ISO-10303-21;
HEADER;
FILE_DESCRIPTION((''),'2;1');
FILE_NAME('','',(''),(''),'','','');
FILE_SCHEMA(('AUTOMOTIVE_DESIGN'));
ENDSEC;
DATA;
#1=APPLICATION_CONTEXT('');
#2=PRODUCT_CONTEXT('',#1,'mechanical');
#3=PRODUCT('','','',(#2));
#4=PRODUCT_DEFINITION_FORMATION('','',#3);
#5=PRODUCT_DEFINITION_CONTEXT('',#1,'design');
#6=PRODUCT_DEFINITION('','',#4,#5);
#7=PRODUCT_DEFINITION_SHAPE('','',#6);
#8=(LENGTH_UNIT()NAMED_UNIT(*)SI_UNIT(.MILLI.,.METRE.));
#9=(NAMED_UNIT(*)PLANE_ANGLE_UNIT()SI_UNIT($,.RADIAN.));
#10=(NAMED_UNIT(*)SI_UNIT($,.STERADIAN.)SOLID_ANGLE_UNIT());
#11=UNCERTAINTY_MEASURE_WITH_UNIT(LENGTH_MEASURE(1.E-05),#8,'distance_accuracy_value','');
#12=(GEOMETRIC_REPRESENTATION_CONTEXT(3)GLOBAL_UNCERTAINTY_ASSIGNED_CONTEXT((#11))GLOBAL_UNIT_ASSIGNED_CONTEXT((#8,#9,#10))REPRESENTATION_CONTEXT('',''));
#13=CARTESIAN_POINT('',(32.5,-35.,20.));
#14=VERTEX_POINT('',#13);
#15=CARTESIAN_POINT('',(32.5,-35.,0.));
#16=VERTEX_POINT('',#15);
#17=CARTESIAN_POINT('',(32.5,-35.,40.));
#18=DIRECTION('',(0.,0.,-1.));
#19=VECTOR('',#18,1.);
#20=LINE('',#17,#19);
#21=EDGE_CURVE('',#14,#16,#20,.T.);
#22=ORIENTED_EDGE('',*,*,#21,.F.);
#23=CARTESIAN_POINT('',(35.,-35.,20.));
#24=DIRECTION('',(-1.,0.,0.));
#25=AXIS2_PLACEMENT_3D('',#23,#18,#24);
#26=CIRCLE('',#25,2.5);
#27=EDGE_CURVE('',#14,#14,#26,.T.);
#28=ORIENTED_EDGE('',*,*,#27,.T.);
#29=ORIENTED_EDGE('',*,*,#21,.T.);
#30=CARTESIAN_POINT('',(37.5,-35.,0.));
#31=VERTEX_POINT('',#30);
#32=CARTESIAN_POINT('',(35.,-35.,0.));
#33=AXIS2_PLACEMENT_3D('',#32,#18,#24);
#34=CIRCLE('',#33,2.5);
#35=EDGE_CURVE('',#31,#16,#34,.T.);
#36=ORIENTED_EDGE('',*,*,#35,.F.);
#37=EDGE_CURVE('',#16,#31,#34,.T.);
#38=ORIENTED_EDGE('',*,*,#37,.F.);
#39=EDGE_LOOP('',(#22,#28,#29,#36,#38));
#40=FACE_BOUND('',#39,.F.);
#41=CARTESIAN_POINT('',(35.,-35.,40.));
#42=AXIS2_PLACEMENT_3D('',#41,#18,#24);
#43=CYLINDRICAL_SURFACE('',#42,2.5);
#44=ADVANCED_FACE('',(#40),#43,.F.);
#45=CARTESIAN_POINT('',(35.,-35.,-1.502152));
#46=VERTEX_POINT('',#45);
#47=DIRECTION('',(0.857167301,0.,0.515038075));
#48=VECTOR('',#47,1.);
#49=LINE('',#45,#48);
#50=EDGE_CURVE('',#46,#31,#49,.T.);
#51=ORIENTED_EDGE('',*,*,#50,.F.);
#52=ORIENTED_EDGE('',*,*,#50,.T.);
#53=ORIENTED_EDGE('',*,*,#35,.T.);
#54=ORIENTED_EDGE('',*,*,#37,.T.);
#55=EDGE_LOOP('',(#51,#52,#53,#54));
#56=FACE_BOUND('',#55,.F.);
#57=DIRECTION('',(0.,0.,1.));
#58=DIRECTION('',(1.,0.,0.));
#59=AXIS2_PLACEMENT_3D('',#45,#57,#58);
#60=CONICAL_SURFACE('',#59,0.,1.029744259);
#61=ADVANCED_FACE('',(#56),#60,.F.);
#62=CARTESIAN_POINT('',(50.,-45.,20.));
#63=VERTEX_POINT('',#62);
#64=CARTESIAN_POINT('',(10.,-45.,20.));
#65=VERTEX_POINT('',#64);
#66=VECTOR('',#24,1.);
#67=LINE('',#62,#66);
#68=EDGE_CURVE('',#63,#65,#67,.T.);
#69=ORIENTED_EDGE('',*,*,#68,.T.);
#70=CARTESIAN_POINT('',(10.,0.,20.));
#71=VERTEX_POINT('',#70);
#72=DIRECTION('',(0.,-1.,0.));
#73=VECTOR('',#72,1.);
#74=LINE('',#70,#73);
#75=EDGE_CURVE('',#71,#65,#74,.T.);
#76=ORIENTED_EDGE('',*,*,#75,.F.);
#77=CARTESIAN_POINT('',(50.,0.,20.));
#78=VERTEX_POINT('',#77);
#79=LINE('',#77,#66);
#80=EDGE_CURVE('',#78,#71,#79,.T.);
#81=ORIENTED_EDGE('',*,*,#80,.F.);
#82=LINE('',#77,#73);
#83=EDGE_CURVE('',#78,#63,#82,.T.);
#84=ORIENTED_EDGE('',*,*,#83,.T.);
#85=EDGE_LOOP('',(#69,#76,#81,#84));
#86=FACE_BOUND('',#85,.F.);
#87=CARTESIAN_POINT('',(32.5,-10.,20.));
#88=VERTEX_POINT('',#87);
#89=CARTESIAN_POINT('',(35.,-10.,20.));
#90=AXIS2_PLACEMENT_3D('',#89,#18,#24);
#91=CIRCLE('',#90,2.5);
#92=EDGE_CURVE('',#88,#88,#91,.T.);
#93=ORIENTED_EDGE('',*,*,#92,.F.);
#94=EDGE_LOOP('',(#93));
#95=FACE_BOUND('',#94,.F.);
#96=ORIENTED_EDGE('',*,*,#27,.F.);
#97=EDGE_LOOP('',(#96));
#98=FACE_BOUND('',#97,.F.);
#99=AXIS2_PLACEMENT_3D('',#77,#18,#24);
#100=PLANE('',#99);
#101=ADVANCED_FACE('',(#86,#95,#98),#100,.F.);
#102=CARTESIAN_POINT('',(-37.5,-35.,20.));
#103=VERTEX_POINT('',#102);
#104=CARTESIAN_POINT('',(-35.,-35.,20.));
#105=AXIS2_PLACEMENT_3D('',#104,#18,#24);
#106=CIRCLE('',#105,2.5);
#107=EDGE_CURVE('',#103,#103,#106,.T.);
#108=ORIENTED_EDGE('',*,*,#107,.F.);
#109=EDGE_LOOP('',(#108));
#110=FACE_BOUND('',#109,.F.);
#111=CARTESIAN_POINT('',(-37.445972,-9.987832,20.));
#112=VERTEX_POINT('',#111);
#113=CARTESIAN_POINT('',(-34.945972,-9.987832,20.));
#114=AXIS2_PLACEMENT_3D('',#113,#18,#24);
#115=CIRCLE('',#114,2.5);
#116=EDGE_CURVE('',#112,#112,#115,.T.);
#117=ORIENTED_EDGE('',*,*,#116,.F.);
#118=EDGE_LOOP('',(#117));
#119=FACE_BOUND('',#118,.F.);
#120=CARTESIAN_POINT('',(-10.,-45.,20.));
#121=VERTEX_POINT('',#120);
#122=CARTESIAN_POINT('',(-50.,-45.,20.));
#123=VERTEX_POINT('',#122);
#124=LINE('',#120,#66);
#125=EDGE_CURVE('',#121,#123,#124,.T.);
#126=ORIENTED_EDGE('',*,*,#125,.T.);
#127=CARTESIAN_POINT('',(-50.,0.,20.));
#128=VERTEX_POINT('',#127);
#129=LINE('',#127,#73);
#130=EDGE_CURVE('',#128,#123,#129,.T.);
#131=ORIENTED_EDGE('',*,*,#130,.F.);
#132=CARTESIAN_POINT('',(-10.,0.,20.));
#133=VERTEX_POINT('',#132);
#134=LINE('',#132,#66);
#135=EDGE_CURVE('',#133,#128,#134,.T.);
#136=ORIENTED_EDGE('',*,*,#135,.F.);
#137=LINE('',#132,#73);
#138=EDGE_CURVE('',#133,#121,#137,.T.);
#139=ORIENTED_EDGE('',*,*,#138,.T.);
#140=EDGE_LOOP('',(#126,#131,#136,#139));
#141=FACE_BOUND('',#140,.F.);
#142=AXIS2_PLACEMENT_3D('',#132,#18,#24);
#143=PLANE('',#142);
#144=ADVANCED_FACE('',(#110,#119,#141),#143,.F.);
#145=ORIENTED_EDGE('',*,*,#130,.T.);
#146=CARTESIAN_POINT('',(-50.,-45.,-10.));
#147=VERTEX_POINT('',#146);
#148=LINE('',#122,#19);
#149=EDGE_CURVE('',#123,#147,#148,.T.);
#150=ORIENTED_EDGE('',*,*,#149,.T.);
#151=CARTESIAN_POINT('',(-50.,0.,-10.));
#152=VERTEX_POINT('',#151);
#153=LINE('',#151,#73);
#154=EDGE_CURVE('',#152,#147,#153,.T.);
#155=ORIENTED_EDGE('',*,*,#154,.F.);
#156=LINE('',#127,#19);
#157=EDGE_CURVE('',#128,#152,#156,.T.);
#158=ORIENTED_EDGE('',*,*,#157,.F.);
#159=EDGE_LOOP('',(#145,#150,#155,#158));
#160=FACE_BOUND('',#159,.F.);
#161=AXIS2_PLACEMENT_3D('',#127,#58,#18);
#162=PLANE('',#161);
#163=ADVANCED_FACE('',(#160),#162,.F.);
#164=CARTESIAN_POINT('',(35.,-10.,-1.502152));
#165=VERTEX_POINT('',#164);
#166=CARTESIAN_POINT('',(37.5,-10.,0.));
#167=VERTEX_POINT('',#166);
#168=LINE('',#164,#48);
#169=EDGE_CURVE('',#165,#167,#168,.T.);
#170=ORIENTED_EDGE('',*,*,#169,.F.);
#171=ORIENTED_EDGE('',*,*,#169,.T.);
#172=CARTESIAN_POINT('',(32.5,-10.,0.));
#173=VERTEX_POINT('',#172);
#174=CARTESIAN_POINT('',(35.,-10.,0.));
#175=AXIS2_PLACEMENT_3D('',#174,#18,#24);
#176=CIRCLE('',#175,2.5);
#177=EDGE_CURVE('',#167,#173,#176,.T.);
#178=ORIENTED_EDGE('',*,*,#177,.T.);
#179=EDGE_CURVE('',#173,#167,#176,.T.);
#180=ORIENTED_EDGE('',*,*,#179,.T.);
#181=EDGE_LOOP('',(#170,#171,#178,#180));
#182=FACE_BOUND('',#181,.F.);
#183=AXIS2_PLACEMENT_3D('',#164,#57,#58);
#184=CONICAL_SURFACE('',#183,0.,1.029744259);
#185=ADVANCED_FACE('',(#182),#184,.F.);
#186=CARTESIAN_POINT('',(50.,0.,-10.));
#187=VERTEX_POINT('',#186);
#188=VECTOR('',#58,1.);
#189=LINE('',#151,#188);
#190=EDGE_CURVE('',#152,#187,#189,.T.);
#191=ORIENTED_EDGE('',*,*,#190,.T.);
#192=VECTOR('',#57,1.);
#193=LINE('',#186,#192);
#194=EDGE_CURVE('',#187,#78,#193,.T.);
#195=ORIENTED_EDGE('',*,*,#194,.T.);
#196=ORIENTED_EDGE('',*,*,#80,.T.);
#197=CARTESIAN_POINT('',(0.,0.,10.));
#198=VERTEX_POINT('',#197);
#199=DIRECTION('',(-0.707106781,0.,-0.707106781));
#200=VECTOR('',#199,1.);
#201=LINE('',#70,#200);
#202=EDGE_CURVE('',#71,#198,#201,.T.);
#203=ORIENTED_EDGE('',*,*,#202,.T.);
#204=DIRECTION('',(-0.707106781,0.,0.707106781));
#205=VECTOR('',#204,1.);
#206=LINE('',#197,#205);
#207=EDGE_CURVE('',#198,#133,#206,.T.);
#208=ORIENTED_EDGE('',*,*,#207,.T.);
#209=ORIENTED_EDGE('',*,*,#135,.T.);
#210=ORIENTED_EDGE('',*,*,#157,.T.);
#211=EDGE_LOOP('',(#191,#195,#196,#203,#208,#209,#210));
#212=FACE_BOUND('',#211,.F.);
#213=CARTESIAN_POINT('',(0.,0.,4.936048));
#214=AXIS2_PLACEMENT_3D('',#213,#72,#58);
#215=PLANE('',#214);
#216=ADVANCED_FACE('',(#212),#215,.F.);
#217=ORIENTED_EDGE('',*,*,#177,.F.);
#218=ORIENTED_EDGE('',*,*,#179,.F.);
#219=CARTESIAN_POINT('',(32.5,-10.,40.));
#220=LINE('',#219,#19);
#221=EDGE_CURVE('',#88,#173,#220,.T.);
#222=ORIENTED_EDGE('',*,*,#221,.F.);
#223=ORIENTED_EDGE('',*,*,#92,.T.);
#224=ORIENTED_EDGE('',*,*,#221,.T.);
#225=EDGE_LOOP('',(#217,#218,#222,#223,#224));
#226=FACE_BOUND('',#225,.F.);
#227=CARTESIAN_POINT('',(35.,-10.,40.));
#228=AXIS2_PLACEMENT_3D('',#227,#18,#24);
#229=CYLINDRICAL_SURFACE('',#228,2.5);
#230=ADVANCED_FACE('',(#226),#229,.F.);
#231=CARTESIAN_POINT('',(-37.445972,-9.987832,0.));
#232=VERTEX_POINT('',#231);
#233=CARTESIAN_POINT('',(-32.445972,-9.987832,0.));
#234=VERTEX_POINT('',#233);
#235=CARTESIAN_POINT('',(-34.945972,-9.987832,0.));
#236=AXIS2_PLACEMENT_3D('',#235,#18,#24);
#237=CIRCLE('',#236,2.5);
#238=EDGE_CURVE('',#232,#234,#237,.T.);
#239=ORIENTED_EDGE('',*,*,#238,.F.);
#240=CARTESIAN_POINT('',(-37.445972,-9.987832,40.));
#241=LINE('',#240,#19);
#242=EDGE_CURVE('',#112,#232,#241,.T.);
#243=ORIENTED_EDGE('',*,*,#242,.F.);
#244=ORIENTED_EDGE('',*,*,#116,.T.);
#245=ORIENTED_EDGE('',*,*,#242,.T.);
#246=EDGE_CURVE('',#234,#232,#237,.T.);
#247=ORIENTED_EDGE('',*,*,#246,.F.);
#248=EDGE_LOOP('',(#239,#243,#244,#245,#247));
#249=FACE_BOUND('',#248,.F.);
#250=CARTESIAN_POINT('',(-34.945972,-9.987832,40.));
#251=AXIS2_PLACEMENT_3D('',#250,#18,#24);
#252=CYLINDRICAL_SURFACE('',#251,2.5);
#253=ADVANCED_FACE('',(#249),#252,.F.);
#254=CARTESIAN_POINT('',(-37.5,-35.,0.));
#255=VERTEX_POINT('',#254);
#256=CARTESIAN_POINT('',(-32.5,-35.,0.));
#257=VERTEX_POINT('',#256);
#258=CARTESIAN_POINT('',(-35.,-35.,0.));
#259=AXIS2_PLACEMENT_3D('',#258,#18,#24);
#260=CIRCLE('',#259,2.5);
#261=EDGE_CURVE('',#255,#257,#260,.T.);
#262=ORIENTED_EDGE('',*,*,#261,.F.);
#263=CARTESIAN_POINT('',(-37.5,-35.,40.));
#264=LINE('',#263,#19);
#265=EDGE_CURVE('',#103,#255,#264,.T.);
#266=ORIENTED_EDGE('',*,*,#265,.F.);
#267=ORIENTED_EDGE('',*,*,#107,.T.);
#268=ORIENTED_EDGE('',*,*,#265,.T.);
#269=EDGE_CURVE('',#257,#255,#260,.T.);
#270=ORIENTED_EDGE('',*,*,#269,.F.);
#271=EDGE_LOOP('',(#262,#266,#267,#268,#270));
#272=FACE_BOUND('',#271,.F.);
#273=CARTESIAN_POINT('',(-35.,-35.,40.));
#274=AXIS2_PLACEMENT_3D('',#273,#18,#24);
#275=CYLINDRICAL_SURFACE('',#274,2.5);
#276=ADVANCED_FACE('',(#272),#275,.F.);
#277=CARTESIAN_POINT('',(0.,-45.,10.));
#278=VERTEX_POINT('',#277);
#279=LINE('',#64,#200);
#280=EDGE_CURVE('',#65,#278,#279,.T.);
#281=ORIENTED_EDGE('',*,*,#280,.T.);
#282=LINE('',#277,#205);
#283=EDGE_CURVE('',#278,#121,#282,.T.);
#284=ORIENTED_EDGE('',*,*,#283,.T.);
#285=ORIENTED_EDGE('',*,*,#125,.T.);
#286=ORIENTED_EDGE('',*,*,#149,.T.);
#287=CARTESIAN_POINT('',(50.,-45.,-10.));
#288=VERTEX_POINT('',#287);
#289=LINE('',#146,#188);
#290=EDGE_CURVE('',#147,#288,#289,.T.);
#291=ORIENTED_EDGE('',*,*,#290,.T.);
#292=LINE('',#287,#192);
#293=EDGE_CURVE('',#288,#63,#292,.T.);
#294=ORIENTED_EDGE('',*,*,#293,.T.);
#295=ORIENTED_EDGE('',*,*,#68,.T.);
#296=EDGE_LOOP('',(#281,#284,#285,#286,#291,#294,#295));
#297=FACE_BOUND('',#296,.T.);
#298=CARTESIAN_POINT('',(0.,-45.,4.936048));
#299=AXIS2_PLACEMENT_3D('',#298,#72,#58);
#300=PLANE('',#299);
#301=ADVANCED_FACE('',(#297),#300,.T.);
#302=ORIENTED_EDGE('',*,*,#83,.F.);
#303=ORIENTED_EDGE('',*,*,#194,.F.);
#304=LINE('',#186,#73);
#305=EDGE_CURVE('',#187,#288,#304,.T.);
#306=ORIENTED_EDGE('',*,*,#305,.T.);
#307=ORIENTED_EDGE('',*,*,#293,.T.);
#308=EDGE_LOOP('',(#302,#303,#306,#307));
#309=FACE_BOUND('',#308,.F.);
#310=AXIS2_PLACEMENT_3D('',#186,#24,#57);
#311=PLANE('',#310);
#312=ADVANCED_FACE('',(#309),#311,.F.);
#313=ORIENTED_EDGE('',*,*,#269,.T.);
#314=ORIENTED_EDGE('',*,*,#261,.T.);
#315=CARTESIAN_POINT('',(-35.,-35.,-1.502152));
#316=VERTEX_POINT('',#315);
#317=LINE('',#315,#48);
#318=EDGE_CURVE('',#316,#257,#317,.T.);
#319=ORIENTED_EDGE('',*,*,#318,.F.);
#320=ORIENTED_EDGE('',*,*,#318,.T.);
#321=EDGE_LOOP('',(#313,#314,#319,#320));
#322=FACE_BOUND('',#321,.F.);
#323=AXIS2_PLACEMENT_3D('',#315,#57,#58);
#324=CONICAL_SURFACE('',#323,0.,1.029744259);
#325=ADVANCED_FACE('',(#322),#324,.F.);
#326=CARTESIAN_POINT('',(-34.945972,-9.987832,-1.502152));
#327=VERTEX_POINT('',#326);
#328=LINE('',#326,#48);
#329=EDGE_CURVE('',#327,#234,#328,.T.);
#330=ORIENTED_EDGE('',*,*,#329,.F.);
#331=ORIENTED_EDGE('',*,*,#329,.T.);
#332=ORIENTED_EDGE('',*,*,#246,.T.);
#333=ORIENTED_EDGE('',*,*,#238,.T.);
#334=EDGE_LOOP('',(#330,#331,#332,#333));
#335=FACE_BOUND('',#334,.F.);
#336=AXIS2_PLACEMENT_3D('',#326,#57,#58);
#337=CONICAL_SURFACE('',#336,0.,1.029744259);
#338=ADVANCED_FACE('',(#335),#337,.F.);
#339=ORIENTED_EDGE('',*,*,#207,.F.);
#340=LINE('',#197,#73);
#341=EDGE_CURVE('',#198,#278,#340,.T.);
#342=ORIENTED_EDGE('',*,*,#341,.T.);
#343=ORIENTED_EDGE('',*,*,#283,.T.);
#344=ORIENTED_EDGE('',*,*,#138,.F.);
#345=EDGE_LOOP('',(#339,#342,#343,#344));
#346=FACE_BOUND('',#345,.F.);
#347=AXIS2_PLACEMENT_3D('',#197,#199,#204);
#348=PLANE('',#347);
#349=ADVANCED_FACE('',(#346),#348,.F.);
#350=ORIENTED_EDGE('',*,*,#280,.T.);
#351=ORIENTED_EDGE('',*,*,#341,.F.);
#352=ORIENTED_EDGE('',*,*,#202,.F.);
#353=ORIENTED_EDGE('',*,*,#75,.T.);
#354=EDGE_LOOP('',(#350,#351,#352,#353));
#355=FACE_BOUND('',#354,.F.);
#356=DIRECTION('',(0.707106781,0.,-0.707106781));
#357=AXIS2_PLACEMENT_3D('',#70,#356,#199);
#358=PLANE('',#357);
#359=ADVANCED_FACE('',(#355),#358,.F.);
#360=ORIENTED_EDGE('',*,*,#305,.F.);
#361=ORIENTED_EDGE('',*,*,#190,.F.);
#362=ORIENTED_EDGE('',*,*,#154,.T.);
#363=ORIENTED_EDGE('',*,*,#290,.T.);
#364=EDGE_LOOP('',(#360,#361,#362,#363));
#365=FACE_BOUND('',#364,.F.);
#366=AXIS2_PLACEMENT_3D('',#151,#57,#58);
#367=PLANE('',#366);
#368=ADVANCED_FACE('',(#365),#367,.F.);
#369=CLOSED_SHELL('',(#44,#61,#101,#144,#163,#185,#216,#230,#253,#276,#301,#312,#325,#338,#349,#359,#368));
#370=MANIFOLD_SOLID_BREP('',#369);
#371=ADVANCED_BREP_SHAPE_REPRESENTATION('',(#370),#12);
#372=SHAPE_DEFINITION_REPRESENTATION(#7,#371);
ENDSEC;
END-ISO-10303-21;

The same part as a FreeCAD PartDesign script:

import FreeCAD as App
import Part
import Sketcher
from FreeCAD import Vector
Q = App.Units.Quantity

doc = App.newDocument("Part")
body = doc.addObject("PartDesign::Body", "Body")

# Sketch on XZ plane
sketch1 = body.newObject("Sketcher::SketchObject", "Sketch")
sketch1.AttachmentSupport = (doc.getObject("XZ_Plane"), [""])
sketch1.MapMode = "FlatFace"
sketch1.addGeometry([
    Part.LineSegment(Vector(50, 20, 0), Vector(10, 20, 0)),  # 0
    Part.LineSegment(Vector(10, 20, 0), Vector(0, 10, 0)),  # 1
    Part.LineSegment(Vector(0, 10, 0), Vector(-10, 20, 0)),  # 2
    Part.LineSegment(Vector(-10, 20, 0), Vector(-50, 20, 0)),  # 3
    Part.LineSegment(Vector(-50, 20, 0), Vector(-50, -10, 0)),  # 4
    Part.LineSegment(Vector(-50, -10, 0), Vector(50, -10, 0)),  # 5
    Part.LineSegment(Vector(50, -10, 0), Vector(50, 20, 0)),  # 6
], False)
sketch1.addConstraint([
    Sketcher.Constraint("Coincident", 0, 2, 1, 1),
    Sketcher.Constraint("Coincident", 1, 2, 2, 1),
    Sketcher.Constraint("Coincident", 2, 2, 3, 1),
    Sketcher.Constraint("Coincident", 3, 2, 4, 1),
    Sketcher.Constraint("Coincident", 4, 2, 5, 1),
    Sketcher.Constraint("Coincident", 5, 2, 6, 1),
    Sketcher.Constraint("Coincident", 6, 2, 0, 1),
    Sketcher.Constraint("Horizontal", 0),
    Sketcher.Constraint("Horizontal", 3),
    Sketcher.Constraint("Vertical", 4),
    Sketcher.Constraint("Horizontal", 5),
    Sketcher.Constraint("Vertical", 6),
    Sketcher.Constraint("Symmetric", 0, 2, 2, 2, -2),
    Sketcher.Constraint("PointOnObject", 1, 2, -2),
    Sketcher.Constraint("Perpendicular", 1, 2),
    Sketcher.Constraint("Equal", 0, 3),
    Sketcher.Constraint("DistanceX", 0, 2, 0, 1, Q("40 mm")),
    Sketcher.Constraint("DistanceX", 5, 1, 5, 2, Q("100 mm")),
    Sketcher.Constraint("DistanceY", 4, 2, 4, 1, Q("30 mm")),
    Sketcher.Constraint("DistanceY", -1, 1, 0, 2, Q("20 mm")),
])
pad1 = body.newObject("PartDesign::Pad", "Pad")
pad1.Profile = sketch1
pad1.Length = 45

# Sketch on XY plane
sketch2 = body.newObject("Sketcher::SketchObject", "Sketch001")
sketch2.AttachmentSupport = (doc.getObject("XY_Plane"), [""])
sketch2.MapMode = "FlatFace"
sketch2.AttachmentOffset = App.Placement(Vector(0, 0, 20), App.Rotation())
sketch2.addGeometry(Part.Circle(Vector(35, -35, 0), Vector(0, 0, 1), 2.5), False)
sketch2.addConstraint([
    Sketcher.Constraint("Diameter", 0, Q("5 mm")),
    Sketcher.Constraint("DistanceX", -1, 1, 0, 3, Q("35 mm")),
    Sketcher.Constraint("DistanceY", 0, 3, -1, 1, Q("35 mm")),
])
doc.recompute()
hole = body.newObject("PartDesign::Hole", "Hole")
hole.Profile = sketch2
hole.ThreadType = "None"
hole.Diameter = 5
hole.DepthType = "Dimension"
hole.Depth = 20
hole.DrillPoint = "Angled"
hole.DrillPointAngle = 118

# Sketch on XY plane
sketch3 = body.newObject("Sketcher::SketchObject", "Sketch002")
sketch3.AttachmentSupport = (doc.getObject("XY_Plane"), [""])
sketch3.MapMode = "FlatFace"
sketch3.AttachmentOffset = App.Placement(Vector(0, 0, 20), App.Rotation())
sketch3.addGeometry(Part.Circle(Vector(35, -10, 0), Vector(0, 0, 1), 2.5), False)
sketch3.addConstraint([
    Sketcher.Constraint("Diameter", 0, Q("5 mm")),
    Sketcher.Constraint("DistanceX", -1, 1, 0, 3, Q("35 mm")),
    Sketcher.Constraint("DistanceY", 0, 3, -1, 1, Q("10 mm")),
])
doc.recompute()
hole2 = body.newObject("PartDesign::Hole", "Hole001")
hole2.Profile = sketch3
hole2.ThreadType = "None"
hole2.Diameter = 5
hole2.DepthType = "Dimension"
hole2.Depth = 20
hole2.DrillPoint = "Angled"
hole2.DrillPointAngle = 118

# Sketch on XY plane
sketch4 = body.newObject("Sketcher::SketchObject", "Sketch003")
sketch4.AttachmentSupport = (doc.getObject("XY_Plane"), [""])
sketch4.MapMode = "FlatFace"
sketch4.AttachmentOffset = App.Placement(Vector(0, 0, 20), App.Rotation())
sketch4.addGeometry(Part.Circle(Vector(-35, -35, 0), Vector(0, 0, 1), 2.5), False)
sketch4.addConstraint([
    Sketcher.Constraint("Diameter", 0, Q("5 mm")),
    Sketcher.Constraint("DistanceX", 0, 3, -1, 1, Q("35 mm")),
    Sketcher.Constraint("DistanceY", 0, 3, -1, 1, Q("35 mm")),
])
doc.recompute()
hole3 = body.newObject("PartDesign::Hole", "Hole002")
hole3.Profile = sketch4
hole3.ThreadType = "None"
hole3.Diameter = 5
hole3.DepthType = "Dimension"
hole3.Depth = 20
hole3.DrillPoint = "Angled"
hole3.DrillPointAngle = 118

# Sketch on XY plane
sketch5 = body.newObject("Sketcher::SketchObject", "Sketch004")
sketch5.AttachmentSupport = (doc.getObject("XY_Plane"), [""])
sketch5.MapMode = "FlatFace"
sketch5.AttachmentOffset = App.Placement(Vector(0, 0, 20), App.Rotation())
sketch5.addGeometry(Part.Circle(Vector(-34.9, -10, 0), Vector(0, 0, 1), 2.5), False)
sketch5.addConstraint([
    Sketcher.Constraint("Diameter", 0, Q("5 mm")),
    Sketcher.Constraint("DistanceX", 0, 3, -1, 1, Q("34.945972 mm")),
    Sketcher.Constraint("DistanceY", 0, 3, -1, 1, Q("9.987832 mm")),
])
doc.recompute()
hole4 = body.newObject("PartDesign::Hole", "Hole003")
hole4.Profile = sketch5
hole4.ThreadType = "None"
hole4.Diameter = 5
hole4.DepthType = "Dimension"
hole4.Depth = 20
hole4.DrillPoint = "Angled"
hole4.DrillPointAngle = 118

doc.recompute()
